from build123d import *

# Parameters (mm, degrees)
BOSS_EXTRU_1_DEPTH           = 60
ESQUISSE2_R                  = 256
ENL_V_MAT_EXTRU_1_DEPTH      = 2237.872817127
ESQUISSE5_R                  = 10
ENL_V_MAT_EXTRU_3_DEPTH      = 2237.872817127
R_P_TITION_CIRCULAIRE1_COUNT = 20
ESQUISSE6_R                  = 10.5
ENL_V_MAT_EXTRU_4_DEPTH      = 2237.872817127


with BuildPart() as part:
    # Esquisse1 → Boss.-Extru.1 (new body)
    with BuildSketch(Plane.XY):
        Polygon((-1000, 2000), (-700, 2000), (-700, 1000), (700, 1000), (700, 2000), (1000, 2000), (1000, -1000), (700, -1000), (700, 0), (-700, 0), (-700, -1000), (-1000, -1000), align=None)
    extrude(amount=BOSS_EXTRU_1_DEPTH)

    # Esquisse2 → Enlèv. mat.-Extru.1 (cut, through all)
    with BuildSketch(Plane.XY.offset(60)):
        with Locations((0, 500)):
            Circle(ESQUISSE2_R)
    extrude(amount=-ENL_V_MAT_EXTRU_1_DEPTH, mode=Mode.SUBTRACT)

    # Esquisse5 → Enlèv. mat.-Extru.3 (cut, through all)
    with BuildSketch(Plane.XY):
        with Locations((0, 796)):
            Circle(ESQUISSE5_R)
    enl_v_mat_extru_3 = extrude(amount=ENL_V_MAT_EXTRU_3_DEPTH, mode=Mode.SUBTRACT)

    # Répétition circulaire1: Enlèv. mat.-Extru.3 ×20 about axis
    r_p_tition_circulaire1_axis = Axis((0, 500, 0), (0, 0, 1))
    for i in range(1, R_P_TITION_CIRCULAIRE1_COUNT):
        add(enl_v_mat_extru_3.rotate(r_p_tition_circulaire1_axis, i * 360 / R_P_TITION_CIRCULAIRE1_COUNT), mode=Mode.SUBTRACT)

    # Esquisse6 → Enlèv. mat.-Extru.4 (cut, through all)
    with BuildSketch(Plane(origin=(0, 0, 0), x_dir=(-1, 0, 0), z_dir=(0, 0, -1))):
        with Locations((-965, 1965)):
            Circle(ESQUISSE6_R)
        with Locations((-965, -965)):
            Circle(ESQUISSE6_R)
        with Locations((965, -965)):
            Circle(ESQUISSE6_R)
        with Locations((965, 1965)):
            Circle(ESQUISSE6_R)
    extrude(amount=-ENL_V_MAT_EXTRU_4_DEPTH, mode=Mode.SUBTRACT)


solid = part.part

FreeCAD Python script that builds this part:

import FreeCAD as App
import Part
import Sketcher

V = App.Vector
Q = App.Units.Quantity


def add_polygon(sketch, points):
    """Adds a closed chain of lines whose ends are joined by coincident constraints."""
    first, n = sketch.GeometryCount, len(points)
    for a, b in zip(points, points[1:] + points[:1]):
        sketch.addGeometry(Part.LineSegment(App.Vector(*a, 0), App.Vector(*b, 0)), False)
    for i in range(n):
        sketch.addConstraint(Sketcher.Constraint("Coincident", first + i, 2, first + (i + 1) % n, 1))

doc = App.newDocument("Part")
body = doc.addObject("PartDesign::Body", "Body")

sketch1 = body.newObject("Sketcher::SketchObject", "Sketch")
sketch1.AttachmentSupport = (doc.getObject("XY_Plane"), [""])
sketch1.MapMode = "FlatFace"
add_polygon(sketch1, [(-700, 2000), (-1000, 2000), (-1000, -1000), (-700, -1000), (-700, 0), (700, 0), (700, -1000), (1000, -1000), (1000, 2000), (700, 2000), (700, 1000), (-700, 1000)])
sketch1.addConstraint(Sketcher.Constraint("Horizontal", 0))
sketch1.addConstraint(Sketcher.Constraint("Vertical", 1))
sketch1.addConstraint(Sketcher.Constraint("Horizontal", 2))
sketch1.addConstraint(Sketcher.Constraint("Vertical", 3))
sketch1.addConstraint(Sketcher.Constraint("Horizontal", 4))
sketch1.addConstraint(Sketcher.Constraint("Vertical", 5))
sketch1.addConstraint(Sketcher.Constraint("Horizontal", 6))
sketch1.addConstraint(Sketcher.Constraint("Vertical", 7))
sketch1.addConstraint(Sketcher.Constraint("Horizontal", 8))
sketch1.addConstraint(Sketcher.Constraint("Vertical", 9))
sketch1.addConstraint(Sketcher.Constraint("Horizontal", 10))
sketch1.addConstraint(Sketcher.Constraint("Vertical", 11))
sketch1.addConstraint(Sketcher.Constraint("Symmetric", 3, 2, 4, 2, -1, 1))
sketch1.addConstraint(Sketcher.Constraint("Symmetric", 2, 2, 9, 2, -1, 1))
sketch1.addConstraint(Sketcher.Constraint("Symmetric", 5, 2, 10, 2, -1, 1))
sketch1.addConstraint(Sketcher.Constraint("Symmetric", 0, 2, 7, 2, -2))
sketch1.addConstraint(Sketcher.Constraint("Equal", 5, 9))
sketch1.addConstraint(Sketcher.Constraint("DistanceX", 0, 2, 0, 1, Q("300 mm")))
sketch1.addConstraint(Sketcher.Constraint("DistanceX", 4, 1, 4, 2, Q("1400 mm")))
sketch1.addConstraint(Sketcher.Constraint("DistanceY", 1, 2, 1, 1, Q("3000 mm")))
pad1 = body.newObject("PartDesign::Pad", "Pad")
pad1.Profile = sketch1
pad1.Length = 60

sketch2 = body.newObject("Sketcher::SketchObject", "Sketch001")
sketch2.AttachmentSupport = (doc.getObject("XY_Plane"), [""])
sketch2.MapMode = "FlatFace"
sketch2.AttachmentOffset = App.Placement(V(0, 0, 60), App.Rotation())
sketch2.addGeometry(Part.Circle(V(0, 500, 0), V(0, 0, 1), 256), False)
sketch2.addConstraint(Sketcher.Constraint("PointOnObject", 0, 3, -2))
sketch2.addConstraint(Sketcher.Constraint("Diameter", 0, Q("512 mm")))
sketch2.addConstraint(Sketcher.Constraint("DistanceY", -1, 1, 0, 3, Q("500 mm")))
pocket1 = body.newObject("PartDesign::Pocket", "Pocket")
pocket1.Profile = sketch2
pocket1.Type = "ThroughAll"

sketch3 = body.newObject("Sketcher::SketchObject", "Sketch002")
sketch3.AttachmentSupport = (doc.getObject("XY_Plane"), [""])
sketch3.MapMode = "FlatFace"
sketch3.addGeometry(Part.Circle(V(0, 796, 0), V(0, 0, 1), 10), False)
sketch3.addConstraint(Sketcher.Constraint("PointOnObject", 0, 3, -2))
sketch3.addConstraint(Sketcher.Constraint("Diameter", 0, Q("20 mm")))
sketch3.addConstraint(Sketcher.Constraint("DistanceY", -1, 1, 0, 3, Q("796 mm")))
pocket2 = body.newObject("PartDesign::Pocket", "Pocket001")
pocket2.Profile = sketch3
pocket2.Type = "ThroughAll"
pocket2.Reversed = True
doc.recompute()

datumline = body.newObject("PartDesign::Line", "DatumLine")
datumline.Placement = App.Placement(V(0, 500, 0), App.Rotation(V(0, 0, 1), V(0, 0, 1)))
polarpattern = body.newObject("PartDesign::PolarPattern", "PolarPattern")
polarpattern.Originals = [pocket2]
polarpattern.Axis = (datumline, [""])
polarpattern.Angle = 360
polarpattern.Occurrences = 20
body.Tip = polarpattern

sketch4 = body.newObject("Sketcher::SketchObject", "Sketch003")
sketch4.AttachmentSupport = (doc.getObject("XY_Plane"), [""])
sketch4.MapMode = "FlatFace"
sketch4.addGeometry(Part.Circle(V(965, 1965, 0), V(0, 0, 1), 10), False)
sketch4.addGeometry(Part.Circle(V(965, -965, 0), V(0, 0, 1), 10), False)
sketch4.addGeometry(Part.Circle(V(-965, -965, 0), V(0, 0, 1), 10), False)
sketch4.addGeometry(Part.Circle(V(-965, 1965, 0), V(0, 0, 1), 10), False)
sketch4.addConstraint(Sketcher.Constraint("Equal", 0, 1))
sketch4.addConstraint(Sketcher.Constraint("Equal", 1, 2))
sketch4.addConstraint(Sketcher.Constraint("Equal", 2, 3))
sketch4.addConstraint(Sketcher.Constraint("Symmetric", 1, 3, 2, 3, -2))
sketch4.addConstraint(Sketcher.Constraint("Symmetric", 0, 3, 3, 3, -2))
sketch4.addConstraint(Sketcher.Constraint("Vertical", 0, 3, 1, 3))
sketch4.addConstraint(Sketcher.Constraint("Diameter", 0, Q("21 mm")))
sketch4.addConstraint(Sketcher.Constraint("DistanceX", -1, 1, 0, 3, Q("965 mm")))
sketch4.addConstraint(Sketcher.Constraint("DistanceY", -1, 1, 0, 3, Q("1965 mm")))
sketch4.addConstraint(Sketcher.Constraint("DistanceY", 1, 3, -1, 1, Q("965 mm")))
pocket3 = body.newObject("PartDesign::Pocket", "Pocket002")
pocket3.Profile = sketch4
pocket3.Type = "ThroughAll"
pocket3.Reversed = True

doc.recompute()
